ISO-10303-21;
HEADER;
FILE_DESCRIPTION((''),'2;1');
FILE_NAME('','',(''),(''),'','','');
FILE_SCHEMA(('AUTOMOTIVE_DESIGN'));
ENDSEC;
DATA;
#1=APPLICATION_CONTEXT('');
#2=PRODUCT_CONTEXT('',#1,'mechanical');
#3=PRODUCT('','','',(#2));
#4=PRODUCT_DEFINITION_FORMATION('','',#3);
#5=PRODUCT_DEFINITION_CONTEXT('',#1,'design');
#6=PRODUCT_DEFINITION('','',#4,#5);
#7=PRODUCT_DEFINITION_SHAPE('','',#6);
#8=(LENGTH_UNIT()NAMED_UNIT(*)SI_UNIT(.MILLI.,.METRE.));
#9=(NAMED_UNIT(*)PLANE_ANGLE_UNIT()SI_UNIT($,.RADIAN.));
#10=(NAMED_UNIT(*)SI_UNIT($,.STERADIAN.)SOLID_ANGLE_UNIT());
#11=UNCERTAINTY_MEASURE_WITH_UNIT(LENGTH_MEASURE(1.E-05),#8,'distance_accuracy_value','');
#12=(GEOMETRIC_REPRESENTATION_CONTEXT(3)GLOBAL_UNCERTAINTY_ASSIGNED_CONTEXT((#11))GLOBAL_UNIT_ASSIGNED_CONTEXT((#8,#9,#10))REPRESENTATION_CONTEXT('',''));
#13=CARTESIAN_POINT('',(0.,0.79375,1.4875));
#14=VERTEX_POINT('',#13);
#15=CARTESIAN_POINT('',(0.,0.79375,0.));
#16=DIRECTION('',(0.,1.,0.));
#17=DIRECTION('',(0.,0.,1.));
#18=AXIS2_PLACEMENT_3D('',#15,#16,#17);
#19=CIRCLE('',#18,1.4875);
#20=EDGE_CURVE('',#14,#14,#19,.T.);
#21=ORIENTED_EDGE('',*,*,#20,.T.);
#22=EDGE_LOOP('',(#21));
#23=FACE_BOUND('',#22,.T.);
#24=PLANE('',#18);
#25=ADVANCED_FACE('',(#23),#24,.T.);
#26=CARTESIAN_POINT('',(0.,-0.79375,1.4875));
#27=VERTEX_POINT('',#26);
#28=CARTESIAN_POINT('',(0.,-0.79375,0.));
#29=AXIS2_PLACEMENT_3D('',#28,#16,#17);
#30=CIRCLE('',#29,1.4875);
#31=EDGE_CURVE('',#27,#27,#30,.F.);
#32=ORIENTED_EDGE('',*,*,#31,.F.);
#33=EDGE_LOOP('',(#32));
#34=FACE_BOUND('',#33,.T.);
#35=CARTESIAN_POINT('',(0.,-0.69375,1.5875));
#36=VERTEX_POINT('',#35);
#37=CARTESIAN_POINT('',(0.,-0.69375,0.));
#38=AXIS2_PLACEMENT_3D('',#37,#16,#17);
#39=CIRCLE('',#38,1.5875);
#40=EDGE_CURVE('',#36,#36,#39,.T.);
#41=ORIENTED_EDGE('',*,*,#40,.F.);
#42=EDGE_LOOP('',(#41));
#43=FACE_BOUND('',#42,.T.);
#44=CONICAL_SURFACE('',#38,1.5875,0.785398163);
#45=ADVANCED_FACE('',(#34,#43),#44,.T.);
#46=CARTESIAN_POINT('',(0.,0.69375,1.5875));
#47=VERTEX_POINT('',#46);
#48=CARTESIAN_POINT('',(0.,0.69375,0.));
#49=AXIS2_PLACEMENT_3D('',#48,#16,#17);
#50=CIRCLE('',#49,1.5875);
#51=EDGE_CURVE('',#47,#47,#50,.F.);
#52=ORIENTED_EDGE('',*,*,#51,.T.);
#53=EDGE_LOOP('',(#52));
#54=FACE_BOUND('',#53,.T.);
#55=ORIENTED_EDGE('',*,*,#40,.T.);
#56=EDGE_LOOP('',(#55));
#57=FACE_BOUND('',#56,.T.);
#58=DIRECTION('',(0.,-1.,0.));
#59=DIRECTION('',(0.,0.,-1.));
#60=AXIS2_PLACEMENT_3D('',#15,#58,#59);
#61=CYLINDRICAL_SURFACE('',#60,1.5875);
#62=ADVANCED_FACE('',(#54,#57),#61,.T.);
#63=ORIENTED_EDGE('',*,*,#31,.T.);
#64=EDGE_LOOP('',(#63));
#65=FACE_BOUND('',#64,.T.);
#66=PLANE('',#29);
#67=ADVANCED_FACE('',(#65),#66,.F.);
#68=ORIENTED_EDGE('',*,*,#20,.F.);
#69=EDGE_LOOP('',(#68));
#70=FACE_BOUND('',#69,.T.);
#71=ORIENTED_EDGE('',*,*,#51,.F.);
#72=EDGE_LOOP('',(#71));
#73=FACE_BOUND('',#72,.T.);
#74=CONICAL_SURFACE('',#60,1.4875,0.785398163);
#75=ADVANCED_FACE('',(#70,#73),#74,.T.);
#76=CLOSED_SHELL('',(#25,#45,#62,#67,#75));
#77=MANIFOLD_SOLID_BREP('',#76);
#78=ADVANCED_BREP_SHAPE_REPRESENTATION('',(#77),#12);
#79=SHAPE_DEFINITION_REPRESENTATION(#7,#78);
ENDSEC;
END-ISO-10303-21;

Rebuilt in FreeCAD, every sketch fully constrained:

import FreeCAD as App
import Part
import Sketcher
Q = App.Units.Quantity


def edges_at(feature, points):
    """Names of the edges that pass closest to the given points."""
    edges = feature.Shape.Edges
    near = lambda p: min(range(len(edges)), key=lambda i: edges[i].distToShape(Part.Vertex(*p))[0])
    return sorted({f"Edge{near(p) + 1}" for p in points})

doc = App.newDocument("Part")
body = doc.addObject("PartDesign::Body", "Body")

# Sketch on XZ plane
sketch1 = body.newObject("Sketcher::SketchObject", "Sketch")
sketch1.AttachmentSupport = (doc.getObject("XZ_Plane"), [""])
sketch1.MapMode = "FlatFace"
sketch1.addGeometry(Part.Circle(App.Vector(0, 0, 0), App.Vector(0, 0, 1), 1.6), False)
sketch1.addConstraint([
    Sketcher.Constraint("Coincident", 0, 3, -1, 1),
    Sketcher.Constraint("Diameter", 0, Q("0.125 in")),
])
pad1 = body.newObject("PartDesign::Pad", "Pad")
pad1.Profile = sketch1
pad1.Length = Q("0.0625 in")
pad1.Midplane = True
doc.recompute()

chamfer = body.newObject("PartDesign::Chamfer", "Chamfer")
chamfer.Base = (pad1, edges_at(pad1, [(-1.587, -0.794, 0), (-1.587, 0.794, 0)]))
chamfer.Size = 0.1

doc.recompute()
